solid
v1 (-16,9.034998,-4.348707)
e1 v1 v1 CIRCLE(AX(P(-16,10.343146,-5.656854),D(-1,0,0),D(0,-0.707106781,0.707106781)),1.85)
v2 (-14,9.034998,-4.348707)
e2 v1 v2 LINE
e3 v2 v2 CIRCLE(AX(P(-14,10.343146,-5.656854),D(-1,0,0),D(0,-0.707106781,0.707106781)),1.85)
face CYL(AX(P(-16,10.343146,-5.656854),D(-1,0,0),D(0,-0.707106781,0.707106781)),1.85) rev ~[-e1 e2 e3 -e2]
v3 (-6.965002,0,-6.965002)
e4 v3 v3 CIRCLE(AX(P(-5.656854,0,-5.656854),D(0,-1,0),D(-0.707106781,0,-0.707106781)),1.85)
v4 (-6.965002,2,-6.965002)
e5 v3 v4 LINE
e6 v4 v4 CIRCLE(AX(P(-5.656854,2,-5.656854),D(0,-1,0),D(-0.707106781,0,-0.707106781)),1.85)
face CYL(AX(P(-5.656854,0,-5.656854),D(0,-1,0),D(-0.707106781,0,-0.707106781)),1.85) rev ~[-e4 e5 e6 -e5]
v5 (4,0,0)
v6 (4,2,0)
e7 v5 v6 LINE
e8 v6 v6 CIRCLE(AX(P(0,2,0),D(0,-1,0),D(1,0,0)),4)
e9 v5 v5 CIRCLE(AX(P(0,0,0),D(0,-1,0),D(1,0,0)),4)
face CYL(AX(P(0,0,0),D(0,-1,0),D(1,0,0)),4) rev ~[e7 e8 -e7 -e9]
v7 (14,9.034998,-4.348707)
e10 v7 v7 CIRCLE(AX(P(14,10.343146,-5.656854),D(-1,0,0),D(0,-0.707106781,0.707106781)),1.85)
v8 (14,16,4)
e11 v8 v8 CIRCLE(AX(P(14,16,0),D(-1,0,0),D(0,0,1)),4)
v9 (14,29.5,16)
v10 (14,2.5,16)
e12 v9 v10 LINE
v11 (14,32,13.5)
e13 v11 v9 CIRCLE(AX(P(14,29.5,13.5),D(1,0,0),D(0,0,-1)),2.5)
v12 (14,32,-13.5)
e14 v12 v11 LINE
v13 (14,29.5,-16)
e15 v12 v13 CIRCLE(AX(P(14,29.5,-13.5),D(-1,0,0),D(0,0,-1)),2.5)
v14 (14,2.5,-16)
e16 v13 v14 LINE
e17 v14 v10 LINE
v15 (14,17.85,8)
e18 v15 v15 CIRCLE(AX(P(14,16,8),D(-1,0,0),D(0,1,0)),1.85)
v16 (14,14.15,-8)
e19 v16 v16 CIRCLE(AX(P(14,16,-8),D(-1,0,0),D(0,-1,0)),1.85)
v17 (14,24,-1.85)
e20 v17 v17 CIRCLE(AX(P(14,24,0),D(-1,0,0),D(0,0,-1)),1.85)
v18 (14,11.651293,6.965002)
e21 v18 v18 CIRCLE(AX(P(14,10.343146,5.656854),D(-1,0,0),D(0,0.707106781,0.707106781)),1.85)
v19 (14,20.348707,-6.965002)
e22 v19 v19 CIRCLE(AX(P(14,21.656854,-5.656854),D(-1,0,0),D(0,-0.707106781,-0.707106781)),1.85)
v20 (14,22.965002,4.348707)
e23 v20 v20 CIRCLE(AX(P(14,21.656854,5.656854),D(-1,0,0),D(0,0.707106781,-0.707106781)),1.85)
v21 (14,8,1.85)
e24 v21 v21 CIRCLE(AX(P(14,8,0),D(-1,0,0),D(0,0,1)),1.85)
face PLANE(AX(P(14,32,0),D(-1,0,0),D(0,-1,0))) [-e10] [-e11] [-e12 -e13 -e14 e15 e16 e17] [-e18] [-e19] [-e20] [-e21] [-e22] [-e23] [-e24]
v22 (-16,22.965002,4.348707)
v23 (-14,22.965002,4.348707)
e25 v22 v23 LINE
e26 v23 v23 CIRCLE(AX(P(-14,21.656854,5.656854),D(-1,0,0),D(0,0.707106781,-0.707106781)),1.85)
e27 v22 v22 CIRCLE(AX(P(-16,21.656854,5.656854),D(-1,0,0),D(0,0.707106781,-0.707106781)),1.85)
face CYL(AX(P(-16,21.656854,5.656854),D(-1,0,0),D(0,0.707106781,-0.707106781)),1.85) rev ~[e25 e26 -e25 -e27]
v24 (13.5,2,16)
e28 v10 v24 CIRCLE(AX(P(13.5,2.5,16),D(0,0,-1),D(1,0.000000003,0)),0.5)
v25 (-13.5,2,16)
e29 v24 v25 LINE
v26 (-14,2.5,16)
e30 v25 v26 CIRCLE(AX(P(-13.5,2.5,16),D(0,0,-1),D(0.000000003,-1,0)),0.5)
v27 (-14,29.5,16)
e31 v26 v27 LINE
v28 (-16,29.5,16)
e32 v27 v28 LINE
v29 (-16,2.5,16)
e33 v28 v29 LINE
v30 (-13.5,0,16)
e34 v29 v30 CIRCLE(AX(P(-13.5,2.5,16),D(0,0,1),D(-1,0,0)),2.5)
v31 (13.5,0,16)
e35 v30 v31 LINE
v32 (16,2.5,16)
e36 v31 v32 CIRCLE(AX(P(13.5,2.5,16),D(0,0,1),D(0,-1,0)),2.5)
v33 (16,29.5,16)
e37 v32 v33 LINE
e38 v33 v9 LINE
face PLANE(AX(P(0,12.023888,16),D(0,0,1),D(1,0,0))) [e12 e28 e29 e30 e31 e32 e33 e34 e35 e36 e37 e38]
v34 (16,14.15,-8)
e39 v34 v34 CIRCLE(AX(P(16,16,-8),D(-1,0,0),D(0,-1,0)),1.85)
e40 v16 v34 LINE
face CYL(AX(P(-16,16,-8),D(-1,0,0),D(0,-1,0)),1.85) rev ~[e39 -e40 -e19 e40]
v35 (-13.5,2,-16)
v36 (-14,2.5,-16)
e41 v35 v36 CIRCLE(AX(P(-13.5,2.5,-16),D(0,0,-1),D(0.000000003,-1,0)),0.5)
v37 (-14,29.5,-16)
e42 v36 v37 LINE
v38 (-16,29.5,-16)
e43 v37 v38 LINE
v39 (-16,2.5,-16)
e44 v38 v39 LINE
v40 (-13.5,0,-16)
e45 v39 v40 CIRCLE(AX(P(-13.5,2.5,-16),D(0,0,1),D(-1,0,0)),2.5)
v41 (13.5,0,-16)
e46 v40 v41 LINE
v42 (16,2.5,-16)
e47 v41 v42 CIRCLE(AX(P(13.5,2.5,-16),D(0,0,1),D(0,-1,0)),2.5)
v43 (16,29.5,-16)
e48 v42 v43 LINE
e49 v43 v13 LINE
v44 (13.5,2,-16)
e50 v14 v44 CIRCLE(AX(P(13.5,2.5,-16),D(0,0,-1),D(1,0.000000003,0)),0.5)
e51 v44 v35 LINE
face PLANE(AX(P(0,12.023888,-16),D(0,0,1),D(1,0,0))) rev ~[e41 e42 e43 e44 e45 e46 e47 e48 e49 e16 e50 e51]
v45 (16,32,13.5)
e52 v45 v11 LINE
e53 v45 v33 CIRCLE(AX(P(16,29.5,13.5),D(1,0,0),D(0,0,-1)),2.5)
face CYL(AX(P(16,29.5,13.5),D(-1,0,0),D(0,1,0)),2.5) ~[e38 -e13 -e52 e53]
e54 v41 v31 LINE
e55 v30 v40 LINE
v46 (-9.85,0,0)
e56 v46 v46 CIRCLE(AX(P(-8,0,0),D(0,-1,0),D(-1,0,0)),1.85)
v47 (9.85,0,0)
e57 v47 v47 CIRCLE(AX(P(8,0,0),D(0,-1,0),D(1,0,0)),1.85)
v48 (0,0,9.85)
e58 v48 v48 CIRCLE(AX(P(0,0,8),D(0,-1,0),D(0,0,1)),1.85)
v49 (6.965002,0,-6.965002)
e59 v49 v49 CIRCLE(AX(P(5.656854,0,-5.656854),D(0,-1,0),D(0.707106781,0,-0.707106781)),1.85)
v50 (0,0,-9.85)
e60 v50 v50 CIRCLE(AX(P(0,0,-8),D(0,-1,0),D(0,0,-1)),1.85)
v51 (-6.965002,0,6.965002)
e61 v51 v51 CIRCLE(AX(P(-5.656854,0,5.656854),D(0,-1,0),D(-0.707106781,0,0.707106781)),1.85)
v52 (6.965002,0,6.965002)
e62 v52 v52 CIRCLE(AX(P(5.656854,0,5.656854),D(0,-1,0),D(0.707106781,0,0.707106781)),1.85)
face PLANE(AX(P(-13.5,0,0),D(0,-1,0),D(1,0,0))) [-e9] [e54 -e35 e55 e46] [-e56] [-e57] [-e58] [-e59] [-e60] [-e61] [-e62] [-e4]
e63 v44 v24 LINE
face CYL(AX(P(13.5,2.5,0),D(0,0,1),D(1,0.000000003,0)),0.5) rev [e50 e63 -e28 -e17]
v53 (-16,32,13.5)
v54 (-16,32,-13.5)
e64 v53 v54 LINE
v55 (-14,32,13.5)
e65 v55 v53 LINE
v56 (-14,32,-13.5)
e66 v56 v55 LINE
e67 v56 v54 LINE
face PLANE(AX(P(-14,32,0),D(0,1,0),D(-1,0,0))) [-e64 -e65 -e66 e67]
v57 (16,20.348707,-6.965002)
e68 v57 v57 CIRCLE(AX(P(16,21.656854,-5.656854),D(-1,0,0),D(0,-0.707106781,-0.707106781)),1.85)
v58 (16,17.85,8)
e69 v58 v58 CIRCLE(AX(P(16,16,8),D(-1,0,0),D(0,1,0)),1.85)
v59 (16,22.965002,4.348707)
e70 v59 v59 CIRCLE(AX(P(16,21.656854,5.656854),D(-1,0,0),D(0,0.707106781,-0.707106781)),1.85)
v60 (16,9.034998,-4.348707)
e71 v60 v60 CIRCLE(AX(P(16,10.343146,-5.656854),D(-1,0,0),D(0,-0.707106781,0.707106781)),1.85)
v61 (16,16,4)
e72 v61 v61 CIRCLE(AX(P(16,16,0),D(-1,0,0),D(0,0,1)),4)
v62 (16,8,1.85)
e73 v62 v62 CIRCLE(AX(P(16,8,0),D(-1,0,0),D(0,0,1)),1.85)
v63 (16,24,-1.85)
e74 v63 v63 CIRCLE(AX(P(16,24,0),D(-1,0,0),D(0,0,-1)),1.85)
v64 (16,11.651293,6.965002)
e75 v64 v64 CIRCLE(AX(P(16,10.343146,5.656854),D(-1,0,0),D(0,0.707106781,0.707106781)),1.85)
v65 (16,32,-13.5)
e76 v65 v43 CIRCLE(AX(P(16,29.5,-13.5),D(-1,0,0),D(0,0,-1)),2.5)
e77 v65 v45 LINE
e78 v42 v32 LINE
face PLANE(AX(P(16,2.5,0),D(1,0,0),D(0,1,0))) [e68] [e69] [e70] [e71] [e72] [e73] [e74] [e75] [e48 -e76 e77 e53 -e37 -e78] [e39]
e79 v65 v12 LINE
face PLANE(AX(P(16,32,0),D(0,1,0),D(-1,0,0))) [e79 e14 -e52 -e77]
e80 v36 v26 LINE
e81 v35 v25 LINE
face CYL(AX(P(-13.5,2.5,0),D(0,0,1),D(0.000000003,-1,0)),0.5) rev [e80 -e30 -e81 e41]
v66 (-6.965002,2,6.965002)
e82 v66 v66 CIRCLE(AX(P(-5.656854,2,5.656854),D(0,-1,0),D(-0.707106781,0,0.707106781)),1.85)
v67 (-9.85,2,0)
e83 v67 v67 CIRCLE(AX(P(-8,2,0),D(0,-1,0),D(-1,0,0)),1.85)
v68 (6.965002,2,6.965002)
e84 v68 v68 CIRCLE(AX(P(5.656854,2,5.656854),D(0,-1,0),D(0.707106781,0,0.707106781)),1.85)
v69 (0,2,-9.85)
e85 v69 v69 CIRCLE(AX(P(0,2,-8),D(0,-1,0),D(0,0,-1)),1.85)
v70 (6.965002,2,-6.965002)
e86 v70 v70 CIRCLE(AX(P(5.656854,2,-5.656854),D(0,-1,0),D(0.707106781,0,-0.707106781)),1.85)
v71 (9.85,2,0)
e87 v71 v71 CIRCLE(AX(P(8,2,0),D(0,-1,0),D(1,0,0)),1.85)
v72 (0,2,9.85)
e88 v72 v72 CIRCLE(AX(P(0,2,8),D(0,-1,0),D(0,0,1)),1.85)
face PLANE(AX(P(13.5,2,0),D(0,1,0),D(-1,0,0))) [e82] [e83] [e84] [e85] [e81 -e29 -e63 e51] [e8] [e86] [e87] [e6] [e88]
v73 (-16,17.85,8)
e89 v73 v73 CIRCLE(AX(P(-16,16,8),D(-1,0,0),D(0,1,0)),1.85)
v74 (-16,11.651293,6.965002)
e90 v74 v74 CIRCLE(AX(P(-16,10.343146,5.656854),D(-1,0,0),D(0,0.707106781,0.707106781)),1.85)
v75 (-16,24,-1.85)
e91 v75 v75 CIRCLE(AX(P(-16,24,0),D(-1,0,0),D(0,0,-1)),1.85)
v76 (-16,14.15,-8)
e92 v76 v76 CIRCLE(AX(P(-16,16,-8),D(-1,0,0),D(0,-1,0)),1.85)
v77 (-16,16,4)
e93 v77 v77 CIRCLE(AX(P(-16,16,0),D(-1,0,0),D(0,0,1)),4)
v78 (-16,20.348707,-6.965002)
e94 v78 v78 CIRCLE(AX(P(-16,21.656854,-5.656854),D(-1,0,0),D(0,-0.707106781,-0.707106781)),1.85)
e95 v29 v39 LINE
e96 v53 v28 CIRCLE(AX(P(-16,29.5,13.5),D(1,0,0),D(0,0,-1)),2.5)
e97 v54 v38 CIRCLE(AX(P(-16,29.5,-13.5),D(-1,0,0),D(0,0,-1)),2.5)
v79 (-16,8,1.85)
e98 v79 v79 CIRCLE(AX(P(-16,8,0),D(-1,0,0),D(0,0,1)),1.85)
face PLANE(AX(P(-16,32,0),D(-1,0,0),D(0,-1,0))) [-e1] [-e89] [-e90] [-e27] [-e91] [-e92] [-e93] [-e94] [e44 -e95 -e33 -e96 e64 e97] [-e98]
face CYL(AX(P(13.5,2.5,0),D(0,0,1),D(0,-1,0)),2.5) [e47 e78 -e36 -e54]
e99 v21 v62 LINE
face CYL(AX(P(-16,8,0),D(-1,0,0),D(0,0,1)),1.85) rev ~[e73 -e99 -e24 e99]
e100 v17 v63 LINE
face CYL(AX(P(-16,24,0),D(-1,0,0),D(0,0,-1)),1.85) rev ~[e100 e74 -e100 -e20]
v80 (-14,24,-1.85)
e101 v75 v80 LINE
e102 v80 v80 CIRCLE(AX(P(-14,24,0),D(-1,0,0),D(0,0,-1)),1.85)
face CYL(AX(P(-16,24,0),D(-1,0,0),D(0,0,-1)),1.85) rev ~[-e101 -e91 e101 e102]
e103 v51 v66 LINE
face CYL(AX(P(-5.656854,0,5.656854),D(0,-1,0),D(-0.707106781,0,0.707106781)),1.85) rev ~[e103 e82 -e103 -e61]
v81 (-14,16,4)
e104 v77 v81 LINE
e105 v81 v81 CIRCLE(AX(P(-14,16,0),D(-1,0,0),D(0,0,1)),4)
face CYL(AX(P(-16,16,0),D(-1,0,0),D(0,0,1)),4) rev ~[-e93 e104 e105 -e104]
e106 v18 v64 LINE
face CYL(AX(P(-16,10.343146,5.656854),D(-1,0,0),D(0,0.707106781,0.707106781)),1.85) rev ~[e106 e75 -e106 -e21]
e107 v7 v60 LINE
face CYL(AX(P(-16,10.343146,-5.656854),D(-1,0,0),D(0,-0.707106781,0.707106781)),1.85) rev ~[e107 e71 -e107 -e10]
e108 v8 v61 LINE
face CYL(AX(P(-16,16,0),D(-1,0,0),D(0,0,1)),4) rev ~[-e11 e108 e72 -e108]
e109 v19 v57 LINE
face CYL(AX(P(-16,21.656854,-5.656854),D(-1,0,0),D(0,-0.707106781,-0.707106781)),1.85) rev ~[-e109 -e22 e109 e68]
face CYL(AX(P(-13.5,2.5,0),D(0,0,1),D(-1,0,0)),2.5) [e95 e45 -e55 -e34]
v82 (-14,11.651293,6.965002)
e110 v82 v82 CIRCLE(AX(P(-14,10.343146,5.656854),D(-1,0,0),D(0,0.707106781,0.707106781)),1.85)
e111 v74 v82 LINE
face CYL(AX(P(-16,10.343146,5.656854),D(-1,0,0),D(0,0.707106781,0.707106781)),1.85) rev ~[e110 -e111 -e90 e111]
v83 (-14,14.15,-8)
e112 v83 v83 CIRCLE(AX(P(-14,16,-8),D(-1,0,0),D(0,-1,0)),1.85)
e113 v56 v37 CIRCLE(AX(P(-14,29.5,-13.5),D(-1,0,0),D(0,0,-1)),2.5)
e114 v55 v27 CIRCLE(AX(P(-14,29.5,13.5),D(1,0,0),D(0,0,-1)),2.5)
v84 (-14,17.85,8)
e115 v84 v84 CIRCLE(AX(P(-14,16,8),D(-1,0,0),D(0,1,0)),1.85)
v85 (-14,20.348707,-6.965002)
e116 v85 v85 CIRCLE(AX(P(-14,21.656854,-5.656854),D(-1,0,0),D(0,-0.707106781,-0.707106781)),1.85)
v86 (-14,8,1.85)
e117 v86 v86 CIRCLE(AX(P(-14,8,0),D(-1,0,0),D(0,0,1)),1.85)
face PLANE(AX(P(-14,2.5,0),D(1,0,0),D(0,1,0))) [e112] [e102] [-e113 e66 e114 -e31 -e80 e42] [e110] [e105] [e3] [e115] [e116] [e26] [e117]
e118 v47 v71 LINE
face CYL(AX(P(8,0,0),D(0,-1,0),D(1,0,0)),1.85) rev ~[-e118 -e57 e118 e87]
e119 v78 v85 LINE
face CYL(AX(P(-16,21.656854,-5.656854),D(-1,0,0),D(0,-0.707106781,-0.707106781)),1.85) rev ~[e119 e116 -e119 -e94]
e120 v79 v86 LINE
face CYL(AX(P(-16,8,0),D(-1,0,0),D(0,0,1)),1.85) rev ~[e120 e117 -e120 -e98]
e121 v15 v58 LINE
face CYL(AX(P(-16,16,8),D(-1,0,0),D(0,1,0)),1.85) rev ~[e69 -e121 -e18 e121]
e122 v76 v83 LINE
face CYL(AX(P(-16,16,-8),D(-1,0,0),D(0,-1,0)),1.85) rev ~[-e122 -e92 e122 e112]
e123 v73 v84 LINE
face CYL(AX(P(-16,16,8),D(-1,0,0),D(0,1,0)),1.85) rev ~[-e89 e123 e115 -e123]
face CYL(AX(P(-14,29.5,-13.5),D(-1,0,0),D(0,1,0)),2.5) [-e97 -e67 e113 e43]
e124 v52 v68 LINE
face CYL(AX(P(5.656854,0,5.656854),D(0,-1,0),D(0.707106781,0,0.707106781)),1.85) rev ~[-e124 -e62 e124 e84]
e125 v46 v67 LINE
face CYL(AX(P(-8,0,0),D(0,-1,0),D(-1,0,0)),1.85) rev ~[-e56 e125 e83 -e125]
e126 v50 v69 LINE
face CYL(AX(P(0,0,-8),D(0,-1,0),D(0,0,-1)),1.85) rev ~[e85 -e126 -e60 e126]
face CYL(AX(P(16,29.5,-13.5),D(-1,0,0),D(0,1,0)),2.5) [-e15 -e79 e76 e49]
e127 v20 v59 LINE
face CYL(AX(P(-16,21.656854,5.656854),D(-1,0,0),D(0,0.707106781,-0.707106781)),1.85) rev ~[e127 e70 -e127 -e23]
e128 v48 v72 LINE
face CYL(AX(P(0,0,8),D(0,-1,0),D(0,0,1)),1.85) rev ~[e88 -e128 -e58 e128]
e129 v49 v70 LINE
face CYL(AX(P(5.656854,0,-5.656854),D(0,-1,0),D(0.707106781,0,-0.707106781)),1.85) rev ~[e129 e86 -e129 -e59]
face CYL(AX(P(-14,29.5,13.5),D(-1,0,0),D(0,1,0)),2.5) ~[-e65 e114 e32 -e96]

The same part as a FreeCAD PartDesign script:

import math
import FreeCAD as App
import Part
import Sketcher
from FreeCAD import Vector
Q = App.Units.Quantity


def edges_at(feature, points):
    """Names of the edges that pass closest to the given points."""
    edges = feature.Shape.Edges
    near = lambda p: min(range(len(edges)), key=lambda i: edges[i].distToShape(Part.Vertex(*p))[0])
    return sorted({f"Edge{near(p) + 1}" for p in points})

doc = App.newDocument("Part")
body = doc.addObject("PartDesign::Body", "Body")

sketch1 = body.newObject("Sketcher::SketchObject", "Sketch")
sketch1.AttachmentSupport = (doc.getObject("XY_Plane"), [""])
sketch1.MapMode = "FlatFace"
sketch1.addGeometry([
    Part.LineSegment(Vector(-13.5, 0, 0), Vector(13.5, 0, 0)),
    Part.ArcOfCircle(Part.Circle(Vector(13.5, 2.5, 0), Vector(0, 0, 1), 2.5), math.radians(-90), math.radians(0)),
    Part.LineSegment(Vector(16, 2.5, 0), Vector(16, 32, 0)),
    Part.LineSegment(Vector(16, 32, 0), Vector(14, 32, 0)),
    Part.LineSegment(Vector(14, 32, 0), Vector(14, 2.5, 0)),
    Part.ArcOfCircle(Part.Circle(Vector(13.5, 2.5, 0), Vector(0, 0, 1), 0.5), math.radians(-90), math.radians(0)),
    Part.LineSegment(Vector(13.5, 2, 0), Vector(-13.5, 2, 0)),
    Part.ArcOfCircle(Part.Circle(Vector(-13.5, 2.5, 0), Vector(0, 0, 1), 0.5), math.radians(180), math.radians(270)),
    Part.LineSegment(Vector(-14, 2.5, 0), Vector(-14, 32, 0)),
    Part.LineSegment(Vector(-14, 32, 0), Vector(-16, 32, 0)),
    Part.LineSegment(Vector(-16, 32, 0), Vector(-16, 2.5, 0)),
    Part.ArcOfCircle(Part.Circle(Vector(-13.5, 2.5, 0), Vector(0, 0, 1), 2.5), math.radians(180), math.radians(270)),
], False)
sketch1.addConstraint([
    Sketcher.Constraint("Tangent", 0, 2, 1, 1),
    Sketcher.Constraint("Tangent", 1, 2, 2, 1),
    Sketcher.Constraint("Coincident", 2, 2, 3, 1),
    Sketcher.Constraint("Coincident", 3, 2, 4, 1),
    Sketcher.Constraint("Tangent", 4, 2, 5, 2),
    Sketcher.Constraint("Tangent", 5, 1, 6, 1),
    Sketcher.Constraint("Tangent", 6, 2, 7, 2),
    Sketcher.Constraint("Tangent", 7, 1, 8, 1),
    Sketcher.Constraint("Coincident", 8, 2, 9, 1),
    Sketcher.Constraint("Coincident", 9, 2, 10, 1),
    Sketcher.Constraint("Tangent", 10, 2, 11, 1),
    Sketcher.Constraint("Tangent", 11, 2, 0, 1),
    Sketcher.Constraint("Horizontal", 0),
    Sketcher.Constraint("Vertical", 2),
    Sketcher.Constraint("Horizontal", 3),
    Sketcher.Constraint("Vertical", 4),
    Sketcher.Constraint("Horizontal", 6),
    Sketcher.Constraint("Vertical", 8),
    Sketcher.Constraint("Horizontal", 9),
    Sketcher.Constraint("Vertical", 10),
    Sketcher.Constraint("Coincident", 5, 3, 1, 3),
    Sketcher.Constraint("Coincident", 11, 3, 7, 3),
    Sketcher.Constraint("Equal", 5, 7),
    Sketcher.Constraint("Symmetric", 0, 2, 11, 2, -1, 1),
    Sketcher.Constraint("Horizontal", 3, 2, 8, 2),
    Sketcher.Constraint("Radius", 1, Q("2.5 mm")),
    Sketcher.Constraint("Radius", 5, Q("0.5 mm")),
    Sketcher.Constraint("DistanceX", 0, 1, 0, 2, Q("27 mm")),
    Sketcher.Constraint("DistanceY", 2, 1, 2, 2, Q("29.5 mm")),
])
pad1 = body.newObject("PartDesign::Pad", "Pad")
pad1.Profile = sketch1
pad1.Length = 32
pad1.Midplane = True
doc.recompute()

fillet = body.newObject("PartDesign::Fillet", "Fillet")
fillet.Base = (pad1, edges_at(pad1, [
    (-15, 32, -16),
    (-15, 32, 16),
    (15, 32, -16),
    (15, 32, 16),
]))
fillet.Radius = 2.5

sketch2 = body.newObject("Sketcher::SketchObject", "Sketch001")
sketch2.AttachmentSupport = (doc.getObject("XZ_Plane"), [""])
sketch2.MapMode = "FlatFace"
sketch2.addGeometry(Part.Circle(Vector(0, 0, 0), Vector(0, 0, 1), 4), False)
sketch2.addConstraint([
    Sketcher.Constraint("Coincident", 0, 3, -1, 1),
    Sketcher.Constraint("Diameter", 0, Q("8 mm")),
])
pocket1 = body.newObject("PartDesign::Pocket", "Pocket")
pocket1.Profile = sketch2
pocket1.Type = "ThroughAll"

sketch3 = body.newObject("Sketcher::SketchObject", "Sketch002")
sketch3.AttachmentSupport = (doc.getObject("YZ_Plane"), [""])
sketch3.MapMode = "FlatFace"
sketch3.AttachmentOffset = App.Placement(Vector(0, 0, -16), App.Rotation())
sketch3.addGeometry(Part.Circle(Vector(16, 0, 0), Vector(0, 0, 1), 4), False)
sketch3.addConstraint([
    Sketcher.Constraint("PointOnObject", 0, 3, -1),
    Sketcher.Constraint("Diameter", 0, Q("8 mm")),
    Sketcher.Constraint("DistanceX", -1, 1, 0, 3, Q("16 mm")),
])
pocket2 = body.newObject("PartDesign::Pocket", "Pocket001")
pocket2.Profile = sketch3
pocket2.Type = "ThroughAll"
pocket2.Reversed = True

sketch4 = body.newObject("Sketcher::SketchObject", "Sketch003")
sketch4.AttachmentSupport = (doc.getObject("YZ_Plane"), [""])
sketch4.MapMode = "FlatFace"
sketch4.AttachmentOffset = App.Placement(Vector(0, 0, -16), App.Rotation())
sketch4.addGeometry(Part.Circle(Vector(8, 0, 0), Vector(0, 0, 1), 1.9), False)
sketch4.addConstraint([
    Sketcher.Constraint("PointOnObject", 0, 3, -1),
    Sketcher.Constraint("Diameter", 0, Q("3.7 mm")),
    Sketcher.Constraint("DistanceX", -1, 1, 0, 3, Q("8 mm")),
])
pocket3 = body.newObject("PartDesign::Pocket", "Pocket002")
pocket3.Profile = sketch4
pocket3.Type = "ThroughAll"
pocket3.Reversed = True

sketch5 = body.newObject("Sketcher::SketchObject", "Sketch004")
sketch5.AttachmentSupport = (doc.getObject("XZ_Plane"), [""])
sketch5.MapMode = "FlatFace"
sketch5.addGeometry(Part.Circle(Vector(8, 0, 0), Vector(0, 0, 1), 1.9), False)
sketch5.addConstraint([
    Sketcher.Constraint("PointOnObject", 0, 3, -1),
    Sketcher.Constraint("Diameter", 0, Q("3.7 mm")),
    Sketcher.Constraint("DistanceX", -1, 1, 0, 3, Q("8 mm")),
])
pocket4 = body.newObject("PartDesign::Pocket", "Pocket003")
pocket4.Profile = sketch5
pocket4.Type = "ThroughAll"
doc.recompute()

polarpattern = body.newObject("PartDesign::PolarPattern", "PolarPattern")
polarpattern.Originals = [pocket4]
polarpattern.Axis = (doc.getObject("Y_Axis"), [""])
polarpattern.Angle = 360
polarpattern.Occurrences = 8
body.Tip = polarpattern
doc.recompute()

datumline = body.newObject("PartDesign::Line", "DatumLine")
datumline.Placement = App.Placement(Vector(0, 16, 0), App.Rotation(Vector(0, 0, 1), Vector(1, 0, 0)))
polarpattern2 = body.newObject("PartDesign::PolarPattern", "PolarPattern001")
polarpattern2.Originals = [pocket3]
polarpattern2.Axis = (datumline, [""])
polarpattern2.Angle = 360
polarpattern2.Occurrences = 8
body.Tip = polarpattern2

doc.recompute()
